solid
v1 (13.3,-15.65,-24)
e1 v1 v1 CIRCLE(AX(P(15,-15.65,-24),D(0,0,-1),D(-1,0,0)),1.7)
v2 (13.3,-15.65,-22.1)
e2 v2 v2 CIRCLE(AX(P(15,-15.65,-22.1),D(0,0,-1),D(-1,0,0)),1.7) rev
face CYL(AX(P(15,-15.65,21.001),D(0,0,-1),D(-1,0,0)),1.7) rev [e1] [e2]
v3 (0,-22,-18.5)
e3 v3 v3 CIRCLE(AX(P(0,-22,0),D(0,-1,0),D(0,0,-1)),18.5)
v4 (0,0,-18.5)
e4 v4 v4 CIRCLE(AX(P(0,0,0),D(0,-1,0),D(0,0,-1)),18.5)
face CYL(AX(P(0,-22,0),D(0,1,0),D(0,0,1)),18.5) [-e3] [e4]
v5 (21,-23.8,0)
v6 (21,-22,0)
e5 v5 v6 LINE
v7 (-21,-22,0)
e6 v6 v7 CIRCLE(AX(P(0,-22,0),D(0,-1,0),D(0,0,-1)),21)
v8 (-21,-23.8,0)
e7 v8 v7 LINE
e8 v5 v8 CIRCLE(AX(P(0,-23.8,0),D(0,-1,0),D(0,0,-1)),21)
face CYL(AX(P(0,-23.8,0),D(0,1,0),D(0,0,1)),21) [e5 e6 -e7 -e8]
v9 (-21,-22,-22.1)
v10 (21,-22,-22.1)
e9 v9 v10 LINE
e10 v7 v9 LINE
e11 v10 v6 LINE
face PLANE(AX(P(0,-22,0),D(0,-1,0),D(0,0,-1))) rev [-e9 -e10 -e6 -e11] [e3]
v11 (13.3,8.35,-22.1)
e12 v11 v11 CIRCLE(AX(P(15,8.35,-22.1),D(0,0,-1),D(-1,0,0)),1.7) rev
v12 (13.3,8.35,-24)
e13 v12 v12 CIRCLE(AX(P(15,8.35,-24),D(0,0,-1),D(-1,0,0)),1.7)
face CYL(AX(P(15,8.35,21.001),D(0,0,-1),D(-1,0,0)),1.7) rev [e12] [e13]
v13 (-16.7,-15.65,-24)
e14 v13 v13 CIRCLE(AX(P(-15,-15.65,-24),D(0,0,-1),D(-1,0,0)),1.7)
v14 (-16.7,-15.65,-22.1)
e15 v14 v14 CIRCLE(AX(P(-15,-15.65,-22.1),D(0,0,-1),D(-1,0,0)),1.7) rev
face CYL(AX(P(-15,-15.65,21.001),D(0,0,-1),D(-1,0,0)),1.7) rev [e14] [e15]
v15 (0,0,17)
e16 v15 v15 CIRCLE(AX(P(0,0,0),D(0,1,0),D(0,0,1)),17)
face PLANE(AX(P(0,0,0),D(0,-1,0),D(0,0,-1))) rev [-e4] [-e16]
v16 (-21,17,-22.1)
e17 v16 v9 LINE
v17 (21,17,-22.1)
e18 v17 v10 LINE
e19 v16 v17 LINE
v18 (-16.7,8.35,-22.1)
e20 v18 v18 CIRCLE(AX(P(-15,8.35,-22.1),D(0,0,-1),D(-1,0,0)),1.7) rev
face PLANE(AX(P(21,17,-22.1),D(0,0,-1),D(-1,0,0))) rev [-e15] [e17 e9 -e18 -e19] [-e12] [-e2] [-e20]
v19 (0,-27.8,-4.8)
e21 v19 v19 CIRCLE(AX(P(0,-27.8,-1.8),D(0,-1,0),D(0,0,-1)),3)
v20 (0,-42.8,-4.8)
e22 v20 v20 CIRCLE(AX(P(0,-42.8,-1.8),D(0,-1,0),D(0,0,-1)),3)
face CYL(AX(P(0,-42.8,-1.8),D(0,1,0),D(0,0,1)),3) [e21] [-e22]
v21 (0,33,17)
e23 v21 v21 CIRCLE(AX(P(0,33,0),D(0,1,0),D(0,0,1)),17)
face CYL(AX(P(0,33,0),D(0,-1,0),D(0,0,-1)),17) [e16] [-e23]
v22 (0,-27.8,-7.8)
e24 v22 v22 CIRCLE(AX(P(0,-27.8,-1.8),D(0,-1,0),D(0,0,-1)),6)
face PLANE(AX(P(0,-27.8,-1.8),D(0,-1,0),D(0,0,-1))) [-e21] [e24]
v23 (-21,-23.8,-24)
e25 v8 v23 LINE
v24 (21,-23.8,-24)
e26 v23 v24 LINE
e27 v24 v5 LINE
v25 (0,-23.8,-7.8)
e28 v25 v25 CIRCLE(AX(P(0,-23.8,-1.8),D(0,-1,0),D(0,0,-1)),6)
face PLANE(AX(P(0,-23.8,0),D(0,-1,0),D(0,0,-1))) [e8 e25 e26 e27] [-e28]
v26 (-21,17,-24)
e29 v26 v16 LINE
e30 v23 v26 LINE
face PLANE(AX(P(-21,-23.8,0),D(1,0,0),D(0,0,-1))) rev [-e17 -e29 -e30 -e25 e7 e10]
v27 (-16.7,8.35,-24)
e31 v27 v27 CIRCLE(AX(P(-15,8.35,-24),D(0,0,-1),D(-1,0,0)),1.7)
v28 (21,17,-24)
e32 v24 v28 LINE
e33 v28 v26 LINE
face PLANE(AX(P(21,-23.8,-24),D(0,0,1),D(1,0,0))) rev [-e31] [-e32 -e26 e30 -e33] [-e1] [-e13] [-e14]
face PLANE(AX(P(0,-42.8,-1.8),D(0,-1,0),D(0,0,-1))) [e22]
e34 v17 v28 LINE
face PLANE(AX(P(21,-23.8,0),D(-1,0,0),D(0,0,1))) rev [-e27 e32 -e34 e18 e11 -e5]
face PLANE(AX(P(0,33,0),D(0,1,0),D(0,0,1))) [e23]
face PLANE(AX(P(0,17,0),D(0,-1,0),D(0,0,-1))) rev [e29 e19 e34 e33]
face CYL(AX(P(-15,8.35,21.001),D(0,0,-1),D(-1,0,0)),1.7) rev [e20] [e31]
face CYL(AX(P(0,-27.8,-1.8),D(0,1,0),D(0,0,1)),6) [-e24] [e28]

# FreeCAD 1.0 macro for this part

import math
import FreeCAD as App
import Part
import Sketcher
from FreeCAD import Vector
Q = App.Units.Quantity


def add_polygon(sketch, points):
    """Adds a closed chain of lines whose ends are joined by coincident constraints."""
    first, n = sketch.GeometryCount, len(points)
    for a, b in zip(points, points[1:] + points[:1]):
        sketch.addGeometry(Part.LineSegment(App.Vector(*a, 0), App.Vector(*b, 0)), False)
    for i in range(n):
        sketch.addConstraint(Sketcher.Constraint("Coincident", first + i, 2, first + (i + 1) % n, 1))

doc = App.newDocument("Part")
params = doc.addObject("Spreadsheet::Sheet", "Params")
for row, (alias, value) in enumerate([
    ("sketch1_diameter", "34 mm"),
    ("pad1_length", "33 mm"),
    ("sketch2_diameter", "37 mm"),
    ("pad2_length", "22 mm"),
    ("sketch3_radius", "21 mm"),
    ("sketch3_height", "24 mm"),
    ("pad3_length", "1.8 mm"),
    ("sketch4_width", "42 mm"),
    ("sketch4_height", "1.9 mm"),
    ("pad4_length", "39 mm"),
    ("sketch5_diameter", "12 mm"),
    ("pad5_length", "4 mm"),
    ("sketch6_diameter", "6 mm"),
    ("pad6_length", "15 mm"),
    ("sketch7_diameter", "3.4 mm"),
    ("sketch8_diameter", "3.4 mm"),
    ("sketch9_diameter", "3.4 mm"),
    ("sketch10_diameter", "3.4 mm"),
], start=1):
    params.set(f"A{row}", alias)
    params.set(f"B{row}", "=" + value)
    params.setAlias(f"B{row}", alias)

body = doc.addObject("PartDesign::Body", "Body")

sketch1 = doc.addObject("Sketcher::SketchObject", "Sketch")
body.addObject(sketch1)
sketch1.AttachmentSupport = (doc.XZ_Plane, [""])
sketch1.MapMode = "FlatFace"
sketch1.addGeometry(Part.Circle(Vector(0, 0, 0), Vector(0, 0, 1), 17), False)
sketch1.addConstraint([
    Sketcher.Constraint("Coincident", 0, 3, -1, 1),
    Sketcher.Constraint("Diameter", 0, Q("34 mm")),
])
sketch1.setExpression("Constraints[1]", "Params.sketch1_diameter")
pad1 = doc.addObject("PartDesign::Pad", "Pad")
body.addObject(pad1)
pad1.Profile = sketch1
pad1.setExpression("Length", "Params.pad1_length")
pad1.Reversed = True

sketch2 = doc.addObject("Sketcher::SketchObject", "Sketch001")
body.addObject(sketch2)
sketch2.AttachmentSupport = (doc.XZ_Plane, [""])
sketch2.MapMode = "FlatFace"
sketch2.addGeometry(Part.Circle(Vector(0, 0, 0), Vector(0, 0, 1), 18), False)
sketch2.addConstraint([
    Sketcher.Constraint("Coincident", 0, 3, -1, 1),
    Sketcher.Constraint("Diameter", 0, Q("37 mm")),
])
sketch2.setExpression("Constraints[1]", "Params.sketch2_diameter")
pad2 = doc.addObject("PartDesign::Pad", "Pad001")
body.addObject(pad2)
pad2.Profile = sketch2
pad2.setExpression("Length", "Params.pad2_length")

sketch3 = doc.addObject("Sketcher::SketchObject", "Sketch002")
body.addObject(sketch3)
sketch3.AttachmentSupport = (doc.XZ_Plane, [""])
sketch3.MapMode = "FlatFace"
sketch3.AttachmentOffset = App.Placement(Vector(0, 0, 22), App.Rotation())
sketch3.addGeometry([
    Part.LineSegment(Vector(-21, 0, 0), Vector(-21, -24, 0)),
    Part.LineSegment(Vector(-21, -24, 0), Vector(21, -24, 0)),
    Part.LineSegment(Vector(21, -24, 0), Vector(21, 0, 0)),
    Part.ArcOfCircle(Part.Circle(Vector(0, 0, 0), Vector(0, 0, 1), 21), math.radians(0), math.radians(180)),
], False)
sketch3.addConstraint([
    Sketcher.Constraint("Coincident", 0, 2, 1, 1),
    Sketcher.Constraint("Coincident", 1, 2, 2, 1),
    Sketcher.Constraint("Tangent", 2, 2, 3, 1),
    Sketcher.Constraint("Tangent", 3, 2, 0, 1),
    Sketcher.Constraint("Vertical", 0),
    Sketcher.Constraint("Horizontal", 1),
    Sketcher.Constraint("Vertical", 2),
    Sketcher.Constraint("Coincident", 3, 3, -1, 1),
    Sketcher.Constraint("Radius", 3, Q("21 mm")),
    Sketcher.Constraint("DistanceY", 0, 2, 0, 1, Q("24 mm")),
])
sketch3.setExpression("Constraints[8]", "Params.sketch3_radius")
sketch3.setExpression("Constraints[9]", "Params.sketch3_height")
pad3 = doc.addObject("PartDesign::Pad", "Pad002")
body.addObject(pad3)
pad3.Profile = sketch3
pad3.setExpression("Length", "Params.pad3_length")

sketch4 = doc.addObject("Sketcher::SketchObject", "Sketch003")
body.addObject(sketch4)
sketch4.AttachmentSupport = (doc.XZ_Plane, [""])
sketch4.MapMode = "FlatFace"
sketch4.AttachmentOffset = App.Placement(Vector(0, 0, 22), App.Rotation())
add_polygon(sketch4, [(-21, -24), (-21, -22.1), (21, -22.1), (21, -24)])
sketch4.addConstraint([
    Sketcher.Constraint("Vertical", 0),
    Sketcher.Constraint("Horizontal", 1),
    Sketcher.Constraint("Vertical", 2),
    Sketcher.Constraint("Horizontal", 3),
    Sketcher.Constraint("DistanceX", 1, 1, 1, 2, Q("42 mm")),
    Sketcher.Constraint("DistanceY", 0, 1, 0, 2, Q("1.9 mm")),
    Sketcher.Constraint("DistanceX", 0, 2, -1, 1, Q("21 mm")),
    Sketcher.Constraint("DistanceY", 2, 2, -1, 1, Q("24 mm")),
])
sketch4.setExpression("Constraints[8]", "Params.sketch4_width")
sketch4.setExpression("Constraints[9]", "Params.sketch4_height")
pad4 = doc.addObject("PartDesign::Pad", "Pad003")
body.addObject(pad4)
pad4.Profile = sketch4
pad4.setExpression("Length", "Params.pad4_length")
pad4.Reversed = True

sketch5 = doc.addObject("Sketcher::SketchObject", "Sketch004")
body.addObject(sketch5)
sketch5.AttachmentSupport = (doc.XZ_Plane, [""])
sketch5.MapMode = "FlatFace"
sketch5.AttachmentOffset = App.Placement(Vector(0, 0, 23.8), App.Rotation())
sketch5.addGeometry(Part.Circle(Vector(0, -2, 0), Vector(0, 0, 1), 6), False)
sketch5.addConstraint([
    Sketcher.Constraint("PointOnObject", 0, 3, -2),
    Sketcher.Constraint("Diameter", 0, Q("12 mm")),
    Sketcher.Constraint("DistanceY", 0, 3, -1, 1, Q("1.8 mm")),
])
sketch5.setExpression("Constraints[1]", "Params.sketch5_diameter")
pad5 = doc.addObject("PartDesign::Pad", "Pad004")
body.addObject(pad5)
pad5.Profile = sketch5
pad5.setExpression("Length", "Params.pad5_length")

sketch6 = doc.addObject("Sketcher::SketchObject", "Sketch005")
body.addObject(sketch6)
sketch6.AttachmentSupport = (doc.XZ_Plane, [""])
sketch6.MapMode = "FlatFace"
sketch6.AttachmentOffset = App.Placement(Vector(0, 0, 27.8), App.Rotation())
sketch6.addGeometry(Part.Circle(Vector(0, -1.8, 0), Vector(0, 0, 1), 3), False)
sketch6.addConstraint([
    Sketcher.Constraint("PointOnObject", 0, 3, -2),
    Sketcher.Constraint("Diameter", 0, Q("6 mm")),
    Sketcher.Constraint("DistanceY", 0, 3, -1, 1, Q("1.8 mm")),
])
sketch6.setExpression("Constraints[1]", "Params.sketch6_diameter")
pad6 = doc.addObject("PartDesign::Pad", "Pad005")
body.addObject(pad6)
pad6.Profile = sketch6
pad6.setExpression("Length", "Params.pad6_length")

sketch7 = doc.addObject("Sketcher::SketchObject", "Sketch006")
body.addObject(sketch7)
sketch7.AttachmentSupport = (doc.XY_Plane, [""])
sketch7.MapMode = "FlatFace"
sketch7.AttachmentOffset = App.Placement(Vector(0, 0, -24), App.Rotation())
sketch7.addGeometry(Part.Circle(Vector(15, 8.3, 0), Vector(0, 0, 1), 1.7), False)
sketch7.addConstraint([
    Sketcher.Constraint("Diameter", 0, Q("3.4 mm")),
    Sketcher.Constraint("DistanceX", -1, 1, 0, 3, Q("15 mm")),
    Sketcher.Constraint("DistanceY", -1, 1, 0, 3, Q("8.35 mm")),
])
sketch7.setExpression("Constraints[0]", "Params.sketch7_diameter")
pocket1 = doc.addObject("PartDesign::Pocket", "Pocket")
body.addObject(pocket1)
pocket1.Profile = sketch7
pocket1.Type = "UpToFirst"
pocket1.Reversed = True

sketch8 = doc.addObject("Sketcher::SketchObject", "Sketch007")
body.addObject(sketch8)
sketch8.AttachmentSupport = (doc.XY_Plane, [""])
sketch8.MapMode = "FlatFace"
sketch8.AttachmentOffset = App.Placement(Vector(0, 0, -24), App.Rotation())
sketch8.addGeometry(Part.Circle(Vector(15, -15.7, 0), Vector(0, 0, 1), 1.7), False)
sketch8.addConstraint([
    Sketcher.Constraint("Diameter", 0, Q("3.4 mm")),
    Sketcher.Constraint("DistanceX", -1, 1, 0, 3, Q("15 mm")),
    Sketcher.Constraint("DistanceY", 0, 3, -1, 1, Q("15.65 mm")),
])
sketch8.setExpression("Constraints[0]", "Params.sketch8_diameter")
pocket2 = doc.addObject("PartDesign::Pocket", "Pocket001")
body.addObject(pocket2)
pocket2.Profile = sketch8
pocket2.Type = "UpToFirst"
pocket2.Reversed = True

sketch9 = doc.addObject("Sketcher::SketchObject", "Sketch008")
body.addObject(sketch9)
sketch9.AttachmentSupport = (doc.XY_Plane, [""])
sketch9.MapMode = "FlatFace"
sketch9.AttachmentOffset = App.Placement(Vector(0, 0, -24), App.Rotation())
sketch9.addGeometry(Part.Circle(Vector(-15, 8.3, 0), Vector(0, 0, 1), 1.7), False)
sketch9.addConstraint([
    Sketcher.Constraint("Diameter", 0, Q("3.4 mm")),
    Sketcher.Constraint("DistanceX", 0, 3, -1, 1, Q("15 mm")),
    Sketcher.Constraint("DistanceY", -1, 1, 0, 3, Q("8.35 mm")),
])
sketch9.setExpression("Constraints[0]", "Params.sketch9_diameter")
pocket3 = doc.addObject("PartDesign::Pocket", "Pocket002")
body.addObject(pocket3)
pocket3.Profile = sketch9
pocket3.Type = "UpToFirst"
pocket3.Reversed = True

sketch10 = doc.addObject("Sketcher::SketchObject", "Sketch009")
body.addObject(sketch10)
sketch10.AttachmentSupport = (doc.XY_Plane, [""])
sketch10.MapMode = "FlatFace"
sketch10.AttachmentOffset = App.Placement(Vector(0, 0, -24), App.Rotation())
sketch10.addGeometry(Part.Circle(Vector(-15, -15.7, 0), Vector(0, 0, 1), 1.7), False)
sketch10.addConstraint([
    Sketcher.Constraint("Diameter", 0, Q("3.4 mm")),
    Sketcher.Constraint("DistanceX", 0, 3, -1, 1, Q("15 mm")),
    Sketcher.Constraint("DistanceY", 0, 3, -1, 1, Q("15.65 mm")),
])
sketch10.setExpression("Constraints[0]", "Params.sketch10_diameter")
pocket4 = doc.addObject("PartDesign::Pocket", "Pocket003")
body.addObject(pocket4)
pocket4.Profile = sketch10
pocket4.Type = "UpToFirst"
pocket4.Reversed = True

doc.recompute()
